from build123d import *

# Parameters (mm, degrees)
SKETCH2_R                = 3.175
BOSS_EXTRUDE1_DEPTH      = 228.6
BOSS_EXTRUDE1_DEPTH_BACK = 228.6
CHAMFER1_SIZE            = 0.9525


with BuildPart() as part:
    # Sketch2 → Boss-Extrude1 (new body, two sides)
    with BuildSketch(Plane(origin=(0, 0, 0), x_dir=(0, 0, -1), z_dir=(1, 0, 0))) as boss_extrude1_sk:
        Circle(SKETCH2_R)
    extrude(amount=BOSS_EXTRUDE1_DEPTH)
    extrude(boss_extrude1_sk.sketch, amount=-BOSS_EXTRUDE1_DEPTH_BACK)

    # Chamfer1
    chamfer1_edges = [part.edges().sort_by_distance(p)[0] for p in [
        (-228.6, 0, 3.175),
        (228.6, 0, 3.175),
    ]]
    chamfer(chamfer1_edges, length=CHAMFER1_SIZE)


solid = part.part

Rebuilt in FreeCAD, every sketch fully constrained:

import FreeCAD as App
import Part
import Sketcher
Q = App.Units.Quantity


def edges_at(feature, points):
    """Names of the edges that pass closest to the given points."""
    edges = feature.Shape.Edges
    near = lambda p: min(range(len(edges)), key=lambda i: edges[i].distToShape(Part.Vertex(*p))[0])
    return sorted({f"Edge{near(p) + 1}" for p in points})

doc = App.newDocument("Part")
body = doc.addObject("PartDesign::Body", "Body")

# Sketch on YZ plane
sketch1 = doc.addObject("Sketcher::SketchObject", "Sketch")
body.addObject(sketch1)
sketch1.AttachmentSupport = (doc.YZ_Plane, [""])
sketch1.MapMode = "FlatFace"
sketch1.addGeometry(Part.Circle(App.Vector(0, 0, 0), App.Vector(0, 0, 1), 3.175), False)
sketch1.addConstraint(Sketcher.Constraint("Coincident", 0, 3, -1, 1))
sketch1.addConstraint(Sketcher.Constraint("Diameter", 0, Q("0.25 in")))
pad1 = doc.addObject("PartDesign::Pad", "Pad")
body.addObject(pad1)
pad1.Profile = sketch1
pad1.Type = "TwoLengths"
pad1.Length = Q("9 in")
pad1.Length2 = Q("9 in")
doc.recompute()

chamfer = doc.addObject("PartDesign::Chamfer", "Chamfer")
body.addObject(chamfer)
chamfer.Base = (pad1, edges_at(pad1, [(-228.6, 0, 3.175), (228.6, 0, 3.175)]))
chamfer.Size = Q("0.0375 in")

doc.recompute()
